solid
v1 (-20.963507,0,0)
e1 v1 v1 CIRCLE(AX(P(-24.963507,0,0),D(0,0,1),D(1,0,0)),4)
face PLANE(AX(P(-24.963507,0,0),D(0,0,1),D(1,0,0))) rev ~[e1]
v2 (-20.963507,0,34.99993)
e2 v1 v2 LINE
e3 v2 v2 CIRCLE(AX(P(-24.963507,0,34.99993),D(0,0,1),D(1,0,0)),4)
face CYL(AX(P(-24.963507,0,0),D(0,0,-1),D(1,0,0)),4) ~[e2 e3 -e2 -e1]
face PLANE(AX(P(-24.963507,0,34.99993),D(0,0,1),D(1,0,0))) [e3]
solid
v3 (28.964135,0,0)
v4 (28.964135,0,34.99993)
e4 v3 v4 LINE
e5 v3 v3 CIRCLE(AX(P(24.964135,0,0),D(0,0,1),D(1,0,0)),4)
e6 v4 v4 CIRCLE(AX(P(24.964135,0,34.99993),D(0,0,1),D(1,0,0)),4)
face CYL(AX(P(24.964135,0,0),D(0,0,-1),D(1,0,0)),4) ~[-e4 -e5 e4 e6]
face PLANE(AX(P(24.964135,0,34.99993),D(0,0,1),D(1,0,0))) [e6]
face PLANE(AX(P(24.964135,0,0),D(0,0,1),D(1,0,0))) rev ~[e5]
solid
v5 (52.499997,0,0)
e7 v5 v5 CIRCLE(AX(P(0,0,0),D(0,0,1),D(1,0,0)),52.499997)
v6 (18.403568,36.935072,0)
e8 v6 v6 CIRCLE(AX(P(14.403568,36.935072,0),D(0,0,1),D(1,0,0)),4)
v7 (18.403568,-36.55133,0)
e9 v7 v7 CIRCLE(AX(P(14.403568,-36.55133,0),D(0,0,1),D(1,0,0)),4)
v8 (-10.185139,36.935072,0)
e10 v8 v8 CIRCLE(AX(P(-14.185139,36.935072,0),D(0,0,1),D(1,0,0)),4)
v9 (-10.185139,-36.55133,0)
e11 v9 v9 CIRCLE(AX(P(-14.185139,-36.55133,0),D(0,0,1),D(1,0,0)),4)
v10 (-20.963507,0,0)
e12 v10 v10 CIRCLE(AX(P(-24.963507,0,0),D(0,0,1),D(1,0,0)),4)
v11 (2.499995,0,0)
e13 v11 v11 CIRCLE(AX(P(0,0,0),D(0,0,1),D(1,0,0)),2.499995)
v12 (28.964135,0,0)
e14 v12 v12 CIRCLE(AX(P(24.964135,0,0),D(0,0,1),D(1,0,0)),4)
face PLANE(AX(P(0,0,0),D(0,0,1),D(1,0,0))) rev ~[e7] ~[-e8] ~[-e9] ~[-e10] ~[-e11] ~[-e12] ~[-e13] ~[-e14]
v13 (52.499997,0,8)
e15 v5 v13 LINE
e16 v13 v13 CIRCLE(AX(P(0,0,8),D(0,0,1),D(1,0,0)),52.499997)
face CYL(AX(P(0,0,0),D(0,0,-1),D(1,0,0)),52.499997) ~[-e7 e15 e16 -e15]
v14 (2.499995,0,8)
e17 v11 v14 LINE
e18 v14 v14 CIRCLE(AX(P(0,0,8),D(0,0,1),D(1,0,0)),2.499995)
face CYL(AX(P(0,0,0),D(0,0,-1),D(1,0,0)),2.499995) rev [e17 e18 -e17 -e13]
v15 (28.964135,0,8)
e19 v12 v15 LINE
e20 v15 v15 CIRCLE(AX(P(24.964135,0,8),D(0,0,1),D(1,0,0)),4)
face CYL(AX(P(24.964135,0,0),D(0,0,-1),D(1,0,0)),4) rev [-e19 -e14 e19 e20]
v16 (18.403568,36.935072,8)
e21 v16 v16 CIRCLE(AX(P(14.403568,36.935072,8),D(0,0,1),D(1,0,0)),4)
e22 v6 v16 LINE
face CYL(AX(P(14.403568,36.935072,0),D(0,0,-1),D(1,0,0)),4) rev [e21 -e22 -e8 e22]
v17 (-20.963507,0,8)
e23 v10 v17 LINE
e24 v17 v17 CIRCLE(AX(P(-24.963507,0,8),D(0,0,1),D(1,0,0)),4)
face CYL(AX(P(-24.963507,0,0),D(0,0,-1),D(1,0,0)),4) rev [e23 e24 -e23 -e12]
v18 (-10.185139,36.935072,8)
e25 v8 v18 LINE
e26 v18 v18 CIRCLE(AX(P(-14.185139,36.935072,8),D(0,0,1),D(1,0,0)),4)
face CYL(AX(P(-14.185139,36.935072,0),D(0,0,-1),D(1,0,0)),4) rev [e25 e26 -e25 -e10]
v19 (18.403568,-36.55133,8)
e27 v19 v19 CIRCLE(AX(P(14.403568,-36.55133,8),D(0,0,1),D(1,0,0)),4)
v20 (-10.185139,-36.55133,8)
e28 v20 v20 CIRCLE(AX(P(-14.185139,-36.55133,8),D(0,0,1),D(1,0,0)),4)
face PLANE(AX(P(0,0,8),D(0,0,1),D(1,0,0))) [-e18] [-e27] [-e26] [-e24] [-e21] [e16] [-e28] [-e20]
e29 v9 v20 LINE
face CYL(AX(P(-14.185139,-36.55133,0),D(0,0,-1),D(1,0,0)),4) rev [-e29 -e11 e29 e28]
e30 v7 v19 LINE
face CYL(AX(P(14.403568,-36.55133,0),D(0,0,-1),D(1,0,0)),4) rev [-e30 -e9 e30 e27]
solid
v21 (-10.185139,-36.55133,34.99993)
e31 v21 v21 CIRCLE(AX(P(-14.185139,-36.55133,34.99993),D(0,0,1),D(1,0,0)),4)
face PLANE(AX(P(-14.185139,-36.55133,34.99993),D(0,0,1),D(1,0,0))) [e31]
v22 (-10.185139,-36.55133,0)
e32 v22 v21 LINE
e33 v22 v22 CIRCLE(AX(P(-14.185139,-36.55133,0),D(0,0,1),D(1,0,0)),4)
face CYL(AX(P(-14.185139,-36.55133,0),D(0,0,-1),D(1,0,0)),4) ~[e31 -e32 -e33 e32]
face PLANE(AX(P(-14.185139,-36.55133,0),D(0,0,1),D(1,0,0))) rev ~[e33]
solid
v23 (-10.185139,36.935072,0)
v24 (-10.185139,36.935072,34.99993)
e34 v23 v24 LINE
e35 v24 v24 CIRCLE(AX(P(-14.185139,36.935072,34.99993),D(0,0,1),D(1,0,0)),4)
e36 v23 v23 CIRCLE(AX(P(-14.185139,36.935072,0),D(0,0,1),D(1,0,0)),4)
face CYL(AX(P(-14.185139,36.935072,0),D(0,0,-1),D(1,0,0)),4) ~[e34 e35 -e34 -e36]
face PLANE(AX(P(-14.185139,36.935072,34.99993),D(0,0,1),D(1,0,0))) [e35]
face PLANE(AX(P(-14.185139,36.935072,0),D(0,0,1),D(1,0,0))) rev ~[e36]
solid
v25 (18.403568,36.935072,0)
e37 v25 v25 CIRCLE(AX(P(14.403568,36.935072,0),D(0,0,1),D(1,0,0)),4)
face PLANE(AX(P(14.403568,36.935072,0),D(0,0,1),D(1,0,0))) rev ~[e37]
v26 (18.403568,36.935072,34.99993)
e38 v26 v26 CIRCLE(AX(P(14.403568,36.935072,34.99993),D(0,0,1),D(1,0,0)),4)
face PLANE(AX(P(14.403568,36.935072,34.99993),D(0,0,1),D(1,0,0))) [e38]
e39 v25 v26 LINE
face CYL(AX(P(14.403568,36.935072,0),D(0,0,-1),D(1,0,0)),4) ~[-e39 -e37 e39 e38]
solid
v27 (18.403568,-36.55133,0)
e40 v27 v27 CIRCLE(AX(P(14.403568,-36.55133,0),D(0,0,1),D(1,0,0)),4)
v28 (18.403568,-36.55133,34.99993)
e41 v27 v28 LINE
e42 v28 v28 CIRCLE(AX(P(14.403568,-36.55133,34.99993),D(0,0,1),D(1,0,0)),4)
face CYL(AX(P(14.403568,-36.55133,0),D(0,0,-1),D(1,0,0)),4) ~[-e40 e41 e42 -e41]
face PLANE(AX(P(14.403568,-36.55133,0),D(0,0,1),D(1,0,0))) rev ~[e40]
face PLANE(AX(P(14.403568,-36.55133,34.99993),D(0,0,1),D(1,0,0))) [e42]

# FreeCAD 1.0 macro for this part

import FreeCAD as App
import Part
import Sketcher

V = App.Vector

doc = App.newDocument("Part")
body = doc.addObject("PartDesign::Body", "Body")
body.AllowCompound = True

# Sketch on XY plane
sketch1 = doc.addObject("Sketcher::SketchObject", "Sketch")
body.addObject(sketch1)
sketch1.AttachmentSupport = (doc.XY_Plane, [""])
sketch1.MapMode = "FlatFace"
sketch1.addGeometry(Part.Circle(V(-24.963507, 0, 0), V(0, 0, 1), 4), False)
sketch1.addGeometry(Part.Circle(V(-14.185139, -36.55133, 0), V(0, 0, 1), 4), False)
sketch1.addGeometry(Part.Circle(V(14.403568, -36.55133, 0), V(0, 0, 1), 4), False)
sketch1.addGeometry(Part.Circle(V(24.964135, 0, 0), V(0, 0, 1), 4), False)
sketch1.addGeometry(Part.Circle(V(14.403568, 36.935072, 0), V(0, 0, 1), 4), False)
sketch1.addGeometry(Part.Circle(V(-14.185139, 36.935072, 0), V(0, 0, 1), 4), False)
sketch1.addConstraint(Sketcher.Constraint("Equal", 0, 1))
sketch1.addConstraint(Sketcher.Constraint("Equal", 1, 2))
sketch1.addConstraint(Sketcher.Constraint("Equal", 2, 3))
sketch1.addConstraint(Sketcher.Constraint("Equal", 3, 4))
sketch1.addConstraint(Sketcher.Constraint("Equal", 4, 5))
sketch1.addConstraint(Sketcher.Constraint("PointOnObject", 0, 3, -1))
sketch1.addConstraint(Sketcher.Constraint("PointOnObject", 3, 3, -1))
sketch1.addConstraint(Sketcher.Constraint("Horizontal", 1, 3, 2, 3))
sketch1.addConstraint(Sketcher.Constraint("Horizontal", 4, 3, 5, 3))
sketch1.addConstraint(Sketcher.Constraint("Vertical", 2, 3, 4, 3))
sketch1.addConstraint(Sketcher.Constraint("Vertical", 1, 3, 5, 3))
sketch1.addConstraint(Sketcher.Constraint("Diameter", 0, 8.0))
sketch1.addConstraint(Sketcher.Constraint("DistanceY", 2, 3, 4, 3, 73.486402))
sketch1.addConstraint(Sketcher.Constraint("DistanceX", 1, 3, -1, 1, 14.185139))
sketch1.addConstraint(Sketcher.Constraint("DistanceY", 1, 3, -1, 1, 36.55133))
sketch1.addConstraint(Sketcher.Constraint("DistanceX", 0, 3, -1, 1, 24.963507))
sketch1.addConstraint(Sketcher.Constraint("DistanceX", -1, 1, 2, 3, 14.403568))
sketch1.addConstraint(Sketcher.Constraint("DistanceX", -1, 1, 3, 3, 24.964135))
pad1 = doc.addObject("PartDesign::Pad", "Pad")
body.addObject(pad1)
pad1.Profile = sketch1
pad1.Length = 34.99993
body2 = doc.addObject("PartDesign::Body", "Body001")

# Sketch on XY plane
sketch2 = doc.addObject("Sketcher::SketchObject", "Sketch001")
body2.addObject(sketch2)
sketch2.AttachmentSupport = (doc.getObject("XY_Plane001"), [""])
sketch2.MapMode = "FlatFace"
sketch2.addGeometry(Part.Circle(V(0, 0, 0), V(0, 0, 1), 52.499997), False)
sketch2.addGeometry(Part.Circle(V(-14.185139, -36.55133, 0), V(0, 0, 1), 4), False)
sketch2.addGeometry(Part.Circle(V(-24.963507, 0, 0), V(0, 0, 1), 4), False)
sketch2.addGeometry(Part.Circle(V(0, 0, 0), V(0, 0, 1), 2.499995), False)
sketch2.addGeometry(Part.Circle(V(14.403568, -36.55133, 0), V(0, 0, 1), 4), False)
sketch2.addGeometry(Part.Circle(V(24.964135, 0, 0), V(0, 0, 1), 4), False)
sketch2.addGeometry(Part.Circle(V(-14.185139, 36.935072, 0), V(0, 0, 1), 4), False)
sketch2.addGeometry(Part.Circle(V(14.403568, 36.935072, 0), V(0, 0, 1), 4), False)
sketch2.addConstraint(Sketcher.Constraint("Coincident", 0, 3, -1, 1))
sketch2.addConstraint(Sketcher.Constraint("Coincident", 3, 3, -1, 1))
sketch2.addConstraint(Sketcher.Constraint("Equal", 1, 2))
sketch2.addConstraint(Sketcher.Constraint("Equal", 2, 4))
sketch2.addConstraint(Sketcher.Constraint("Equal", 4, 5))
sketch2.addConstraint(Sketcher.Constraint("Equal", 5, 6))
sketch2.addConstraint(Sketcher.Constraint("Equal", 6, 7))
sketch2.addConstraint(Sketcher.Constraint("PointOnObject", 2, 3, -1))
sketch2.addConstraint(Sketcher.Constraint("PointOnObject", 5, 3, -1))
sketch2.addConstraint(Sketcher.Constraint("Horizontal", 1, 3, 4, 3))
sketch2.addConstraint(Sketcher.Constraint("Horizontal", 6, 3, 7, 3))
sketch2.addConstraint(Sketcher.Constraint("Vertical", 1, 3, 6, 3))
sketch2.addConstraint(Sketcher.Constraint("Vertical", 4, 3, 7, 3))
sketch2.addConstraint(Sketcher.Constraint("Diameter", 1, 8.0))
sketch2.addConstraint(Sketcher.Constraint("Diameter", 3, 4.99999))
sketch2.addConstraint(Sketcher.Constraint("Diameter", 0, 104.999994))
sketch2.addConstraint(Sketcher.Constraint("DistanceY", 1, 3, 6, 3, 73.486402))
sketch2.addConstraint(Sketcher.Constraint("DistanceX", 1, 3, -1, 1, 14.185139))
sketch2.addConstraint(Sketcher.Constraint("DistanceY", 1, 3, -1, 1, 36.55133))
sketch2.addConstraint(Sketcher.Constraint("DistanceX", 2, 3, -1, 1, 24.963507))
sketch2.addConstraint(Sketcher.Constraint("DistanceX", -1, 1, 4, 3, 14.403568))
sketch2.addConstraint(Sketcher.Constraint("DistanceX", -1, 1, 5, 3, 24.964135))
pad2 = doc.addObject("PartDesign::Pad", "Pad001")
body2.addObject(pad2)
pad2.Profile = sketch2
pad2.Length = 8

doc.recompute()
